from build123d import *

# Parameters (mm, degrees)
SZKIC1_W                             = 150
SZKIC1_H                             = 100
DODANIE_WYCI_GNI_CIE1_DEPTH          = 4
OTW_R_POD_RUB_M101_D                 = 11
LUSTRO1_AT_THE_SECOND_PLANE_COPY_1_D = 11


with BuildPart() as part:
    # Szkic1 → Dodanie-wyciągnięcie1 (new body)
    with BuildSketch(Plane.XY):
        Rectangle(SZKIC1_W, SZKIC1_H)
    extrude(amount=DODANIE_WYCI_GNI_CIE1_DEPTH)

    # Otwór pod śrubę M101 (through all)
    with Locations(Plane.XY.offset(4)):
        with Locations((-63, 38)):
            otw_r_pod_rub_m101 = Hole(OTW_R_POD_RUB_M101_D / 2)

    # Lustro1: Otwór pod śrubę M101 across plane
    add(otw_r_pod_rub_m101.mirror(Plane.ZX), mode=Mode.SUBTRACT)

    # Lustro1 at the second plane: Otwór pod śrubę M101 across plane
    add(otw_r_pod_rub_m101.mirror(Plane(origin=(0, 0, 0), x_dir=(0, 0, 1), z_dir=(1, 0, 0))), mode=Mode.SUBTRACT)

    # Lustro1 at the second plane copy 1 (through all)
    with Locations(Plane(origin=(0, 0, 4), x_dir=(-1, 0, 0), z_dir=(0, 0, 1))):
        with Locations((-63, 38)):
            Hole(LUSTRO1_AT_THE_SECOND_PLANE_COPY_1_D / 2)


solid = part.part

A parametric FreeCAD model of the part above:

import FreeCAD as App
import Part
import Sketcher
from FreeCAD import Vector


def add_polygon(sketch, points):
    """Adds a closed chain of lines whose ends are joined by coincident constraints."""
    first, n = sketch.GeometryCount, len(points)
    for a, b in zip(points, points[1:] + points[:1]):
        sketch.addGeometry(Part.LineSegment(App.Vector(*a, 0), App.Vector(*b, 0)), False)
    for i in range(n):
        sketch.addConstraint(Sketcher.Constraint("Coincident", first + i, 2, first + (i + 1) % n, 1))

doc = App.newDocument("Part")
body = doc.addObject("PartDesign::Body", "Body")

# Sketch on XY plane
sketch1 = body.newObject("Sketcher::SketchObject", "Sketch")
sketch1.AttachmentSupport = (doc.getObject("XY_Plane"), [""])
sketch1.MapMode = "FlatFace"
add_polygon(sketch1, [(-75, 50), (-75, -50), (75, -50), (75, 50)])  # lines 0-3
sketch1.addConstraint(Sketcher.Constraint("Vertical", 0))
sketch1.addConstraint(Sketcher.Constraint("Horizontal", 1))
sketch1.addConstraint(Sketcher.Constraint("Vertical", 2))
sketch1.addConstraint(Sketcher.Constraint("Horizontal", 3))
sketch1.addConstraint(Sketcher.Constraint("Symmetric", 0, 2, 2, 2, -1, 1))
sketch1.addConstraint(Sketcher.Constraint("DistanceX", 1, 1, 1, 2, 150.0))
sketch1.addConstraint(Sketcher.Constraint("DistanceY", 0, 2, 0, 1, 100.0))
pad1 = body.newObject("PartDesign::Pad", "Pad")
pad1.Profile = sketch1
pad1.Length = 4

# Sketch on XY plane
sketch2 = body.newObject("Sketcher::SketchObject", "Sketch001")
sketch2.AttachmentSupport = (doc.getObject("XY_Plane"), [""])
sketch2.MapMode = "FlatFace"
sketch2.AttachmentOffset = App.Placement(Vector(0, 0, 4), App.Rotation())
sketch2.addGeometry(Part.Circle(Vector(-63, 38, 0), Vector(0, 0, 1), 6), False)
sketch2.addConstraint(Sketcher.Constraint("Diameter", 0, 11.0))
sketch2.addConstraint(Sketcher.Constraint("DistanceX", 0, 3, -1, 1, 63.0))
sketch2.addConstraint(Sketcher.Constraint("DistanceY", -1, 1, 0, 3, 38.0))
doc.recompute()
hole = body.newObject("PartDesign::Hole", "Hole")
hole.Profile = sketch2
hole.ThreadType = "None"
hole.Diameter = 11
hole.DepthType = "ThroughAll"
doc.recompute()

mirrored = body.newObject("PartDesign::Mirrored", "Mirrored")
mirrored.Originals = [hole]
mirrored.MirrorPlane = (doc.getObject("XZ_Plane"), [""])
body.Tip = mirrored
doc.recompute()

mirrored2 = body.newObject("PartDesign::Mirrored", "Mirrored001")
mirrored2.Originals = [hole]
mirrored2.MirrorPlane = (doc.getObject("YZ_Plane"), [""])
body.Tip = mirrored2

# Sketch on XY plane
sketch3 = body.newObject("Sketcher::SketchObject", "Sketch002")
sketch3.AttachmentSupport = (doc.getObject("XY_Plane"), [""])
sketch3.MapMode = "FlatFace"
sketch3.AttachmentOffset = App.Placement(Vector(0, 0, 4), App.Rotation())
sketch3.addGeometry(Part.Circle(Vector(63, -38, 0), Vector(0, 0, 1), 6), False)
sketch3.addConstraint(Sketcher.Constraint("Diameter", 0, 11.0))
sketch3.addConstraint(Sketcher.Constraint("DistanceX", -1, 1, 0, 3, 63.0))
sketch3.addConstraint(Sketcher.Constraint("DistanceY", 0, 3, -1, 1, 38.0))
doc.recompute()
hole2 = body.newObject("PartDesign::Hole", "Hole001")
hole2.Profile = sketch3
hole2.ThreadType = "None"
hole2.Diameter = 11
hole2.DepthType = "ThroughAll"

doc.recompute()
